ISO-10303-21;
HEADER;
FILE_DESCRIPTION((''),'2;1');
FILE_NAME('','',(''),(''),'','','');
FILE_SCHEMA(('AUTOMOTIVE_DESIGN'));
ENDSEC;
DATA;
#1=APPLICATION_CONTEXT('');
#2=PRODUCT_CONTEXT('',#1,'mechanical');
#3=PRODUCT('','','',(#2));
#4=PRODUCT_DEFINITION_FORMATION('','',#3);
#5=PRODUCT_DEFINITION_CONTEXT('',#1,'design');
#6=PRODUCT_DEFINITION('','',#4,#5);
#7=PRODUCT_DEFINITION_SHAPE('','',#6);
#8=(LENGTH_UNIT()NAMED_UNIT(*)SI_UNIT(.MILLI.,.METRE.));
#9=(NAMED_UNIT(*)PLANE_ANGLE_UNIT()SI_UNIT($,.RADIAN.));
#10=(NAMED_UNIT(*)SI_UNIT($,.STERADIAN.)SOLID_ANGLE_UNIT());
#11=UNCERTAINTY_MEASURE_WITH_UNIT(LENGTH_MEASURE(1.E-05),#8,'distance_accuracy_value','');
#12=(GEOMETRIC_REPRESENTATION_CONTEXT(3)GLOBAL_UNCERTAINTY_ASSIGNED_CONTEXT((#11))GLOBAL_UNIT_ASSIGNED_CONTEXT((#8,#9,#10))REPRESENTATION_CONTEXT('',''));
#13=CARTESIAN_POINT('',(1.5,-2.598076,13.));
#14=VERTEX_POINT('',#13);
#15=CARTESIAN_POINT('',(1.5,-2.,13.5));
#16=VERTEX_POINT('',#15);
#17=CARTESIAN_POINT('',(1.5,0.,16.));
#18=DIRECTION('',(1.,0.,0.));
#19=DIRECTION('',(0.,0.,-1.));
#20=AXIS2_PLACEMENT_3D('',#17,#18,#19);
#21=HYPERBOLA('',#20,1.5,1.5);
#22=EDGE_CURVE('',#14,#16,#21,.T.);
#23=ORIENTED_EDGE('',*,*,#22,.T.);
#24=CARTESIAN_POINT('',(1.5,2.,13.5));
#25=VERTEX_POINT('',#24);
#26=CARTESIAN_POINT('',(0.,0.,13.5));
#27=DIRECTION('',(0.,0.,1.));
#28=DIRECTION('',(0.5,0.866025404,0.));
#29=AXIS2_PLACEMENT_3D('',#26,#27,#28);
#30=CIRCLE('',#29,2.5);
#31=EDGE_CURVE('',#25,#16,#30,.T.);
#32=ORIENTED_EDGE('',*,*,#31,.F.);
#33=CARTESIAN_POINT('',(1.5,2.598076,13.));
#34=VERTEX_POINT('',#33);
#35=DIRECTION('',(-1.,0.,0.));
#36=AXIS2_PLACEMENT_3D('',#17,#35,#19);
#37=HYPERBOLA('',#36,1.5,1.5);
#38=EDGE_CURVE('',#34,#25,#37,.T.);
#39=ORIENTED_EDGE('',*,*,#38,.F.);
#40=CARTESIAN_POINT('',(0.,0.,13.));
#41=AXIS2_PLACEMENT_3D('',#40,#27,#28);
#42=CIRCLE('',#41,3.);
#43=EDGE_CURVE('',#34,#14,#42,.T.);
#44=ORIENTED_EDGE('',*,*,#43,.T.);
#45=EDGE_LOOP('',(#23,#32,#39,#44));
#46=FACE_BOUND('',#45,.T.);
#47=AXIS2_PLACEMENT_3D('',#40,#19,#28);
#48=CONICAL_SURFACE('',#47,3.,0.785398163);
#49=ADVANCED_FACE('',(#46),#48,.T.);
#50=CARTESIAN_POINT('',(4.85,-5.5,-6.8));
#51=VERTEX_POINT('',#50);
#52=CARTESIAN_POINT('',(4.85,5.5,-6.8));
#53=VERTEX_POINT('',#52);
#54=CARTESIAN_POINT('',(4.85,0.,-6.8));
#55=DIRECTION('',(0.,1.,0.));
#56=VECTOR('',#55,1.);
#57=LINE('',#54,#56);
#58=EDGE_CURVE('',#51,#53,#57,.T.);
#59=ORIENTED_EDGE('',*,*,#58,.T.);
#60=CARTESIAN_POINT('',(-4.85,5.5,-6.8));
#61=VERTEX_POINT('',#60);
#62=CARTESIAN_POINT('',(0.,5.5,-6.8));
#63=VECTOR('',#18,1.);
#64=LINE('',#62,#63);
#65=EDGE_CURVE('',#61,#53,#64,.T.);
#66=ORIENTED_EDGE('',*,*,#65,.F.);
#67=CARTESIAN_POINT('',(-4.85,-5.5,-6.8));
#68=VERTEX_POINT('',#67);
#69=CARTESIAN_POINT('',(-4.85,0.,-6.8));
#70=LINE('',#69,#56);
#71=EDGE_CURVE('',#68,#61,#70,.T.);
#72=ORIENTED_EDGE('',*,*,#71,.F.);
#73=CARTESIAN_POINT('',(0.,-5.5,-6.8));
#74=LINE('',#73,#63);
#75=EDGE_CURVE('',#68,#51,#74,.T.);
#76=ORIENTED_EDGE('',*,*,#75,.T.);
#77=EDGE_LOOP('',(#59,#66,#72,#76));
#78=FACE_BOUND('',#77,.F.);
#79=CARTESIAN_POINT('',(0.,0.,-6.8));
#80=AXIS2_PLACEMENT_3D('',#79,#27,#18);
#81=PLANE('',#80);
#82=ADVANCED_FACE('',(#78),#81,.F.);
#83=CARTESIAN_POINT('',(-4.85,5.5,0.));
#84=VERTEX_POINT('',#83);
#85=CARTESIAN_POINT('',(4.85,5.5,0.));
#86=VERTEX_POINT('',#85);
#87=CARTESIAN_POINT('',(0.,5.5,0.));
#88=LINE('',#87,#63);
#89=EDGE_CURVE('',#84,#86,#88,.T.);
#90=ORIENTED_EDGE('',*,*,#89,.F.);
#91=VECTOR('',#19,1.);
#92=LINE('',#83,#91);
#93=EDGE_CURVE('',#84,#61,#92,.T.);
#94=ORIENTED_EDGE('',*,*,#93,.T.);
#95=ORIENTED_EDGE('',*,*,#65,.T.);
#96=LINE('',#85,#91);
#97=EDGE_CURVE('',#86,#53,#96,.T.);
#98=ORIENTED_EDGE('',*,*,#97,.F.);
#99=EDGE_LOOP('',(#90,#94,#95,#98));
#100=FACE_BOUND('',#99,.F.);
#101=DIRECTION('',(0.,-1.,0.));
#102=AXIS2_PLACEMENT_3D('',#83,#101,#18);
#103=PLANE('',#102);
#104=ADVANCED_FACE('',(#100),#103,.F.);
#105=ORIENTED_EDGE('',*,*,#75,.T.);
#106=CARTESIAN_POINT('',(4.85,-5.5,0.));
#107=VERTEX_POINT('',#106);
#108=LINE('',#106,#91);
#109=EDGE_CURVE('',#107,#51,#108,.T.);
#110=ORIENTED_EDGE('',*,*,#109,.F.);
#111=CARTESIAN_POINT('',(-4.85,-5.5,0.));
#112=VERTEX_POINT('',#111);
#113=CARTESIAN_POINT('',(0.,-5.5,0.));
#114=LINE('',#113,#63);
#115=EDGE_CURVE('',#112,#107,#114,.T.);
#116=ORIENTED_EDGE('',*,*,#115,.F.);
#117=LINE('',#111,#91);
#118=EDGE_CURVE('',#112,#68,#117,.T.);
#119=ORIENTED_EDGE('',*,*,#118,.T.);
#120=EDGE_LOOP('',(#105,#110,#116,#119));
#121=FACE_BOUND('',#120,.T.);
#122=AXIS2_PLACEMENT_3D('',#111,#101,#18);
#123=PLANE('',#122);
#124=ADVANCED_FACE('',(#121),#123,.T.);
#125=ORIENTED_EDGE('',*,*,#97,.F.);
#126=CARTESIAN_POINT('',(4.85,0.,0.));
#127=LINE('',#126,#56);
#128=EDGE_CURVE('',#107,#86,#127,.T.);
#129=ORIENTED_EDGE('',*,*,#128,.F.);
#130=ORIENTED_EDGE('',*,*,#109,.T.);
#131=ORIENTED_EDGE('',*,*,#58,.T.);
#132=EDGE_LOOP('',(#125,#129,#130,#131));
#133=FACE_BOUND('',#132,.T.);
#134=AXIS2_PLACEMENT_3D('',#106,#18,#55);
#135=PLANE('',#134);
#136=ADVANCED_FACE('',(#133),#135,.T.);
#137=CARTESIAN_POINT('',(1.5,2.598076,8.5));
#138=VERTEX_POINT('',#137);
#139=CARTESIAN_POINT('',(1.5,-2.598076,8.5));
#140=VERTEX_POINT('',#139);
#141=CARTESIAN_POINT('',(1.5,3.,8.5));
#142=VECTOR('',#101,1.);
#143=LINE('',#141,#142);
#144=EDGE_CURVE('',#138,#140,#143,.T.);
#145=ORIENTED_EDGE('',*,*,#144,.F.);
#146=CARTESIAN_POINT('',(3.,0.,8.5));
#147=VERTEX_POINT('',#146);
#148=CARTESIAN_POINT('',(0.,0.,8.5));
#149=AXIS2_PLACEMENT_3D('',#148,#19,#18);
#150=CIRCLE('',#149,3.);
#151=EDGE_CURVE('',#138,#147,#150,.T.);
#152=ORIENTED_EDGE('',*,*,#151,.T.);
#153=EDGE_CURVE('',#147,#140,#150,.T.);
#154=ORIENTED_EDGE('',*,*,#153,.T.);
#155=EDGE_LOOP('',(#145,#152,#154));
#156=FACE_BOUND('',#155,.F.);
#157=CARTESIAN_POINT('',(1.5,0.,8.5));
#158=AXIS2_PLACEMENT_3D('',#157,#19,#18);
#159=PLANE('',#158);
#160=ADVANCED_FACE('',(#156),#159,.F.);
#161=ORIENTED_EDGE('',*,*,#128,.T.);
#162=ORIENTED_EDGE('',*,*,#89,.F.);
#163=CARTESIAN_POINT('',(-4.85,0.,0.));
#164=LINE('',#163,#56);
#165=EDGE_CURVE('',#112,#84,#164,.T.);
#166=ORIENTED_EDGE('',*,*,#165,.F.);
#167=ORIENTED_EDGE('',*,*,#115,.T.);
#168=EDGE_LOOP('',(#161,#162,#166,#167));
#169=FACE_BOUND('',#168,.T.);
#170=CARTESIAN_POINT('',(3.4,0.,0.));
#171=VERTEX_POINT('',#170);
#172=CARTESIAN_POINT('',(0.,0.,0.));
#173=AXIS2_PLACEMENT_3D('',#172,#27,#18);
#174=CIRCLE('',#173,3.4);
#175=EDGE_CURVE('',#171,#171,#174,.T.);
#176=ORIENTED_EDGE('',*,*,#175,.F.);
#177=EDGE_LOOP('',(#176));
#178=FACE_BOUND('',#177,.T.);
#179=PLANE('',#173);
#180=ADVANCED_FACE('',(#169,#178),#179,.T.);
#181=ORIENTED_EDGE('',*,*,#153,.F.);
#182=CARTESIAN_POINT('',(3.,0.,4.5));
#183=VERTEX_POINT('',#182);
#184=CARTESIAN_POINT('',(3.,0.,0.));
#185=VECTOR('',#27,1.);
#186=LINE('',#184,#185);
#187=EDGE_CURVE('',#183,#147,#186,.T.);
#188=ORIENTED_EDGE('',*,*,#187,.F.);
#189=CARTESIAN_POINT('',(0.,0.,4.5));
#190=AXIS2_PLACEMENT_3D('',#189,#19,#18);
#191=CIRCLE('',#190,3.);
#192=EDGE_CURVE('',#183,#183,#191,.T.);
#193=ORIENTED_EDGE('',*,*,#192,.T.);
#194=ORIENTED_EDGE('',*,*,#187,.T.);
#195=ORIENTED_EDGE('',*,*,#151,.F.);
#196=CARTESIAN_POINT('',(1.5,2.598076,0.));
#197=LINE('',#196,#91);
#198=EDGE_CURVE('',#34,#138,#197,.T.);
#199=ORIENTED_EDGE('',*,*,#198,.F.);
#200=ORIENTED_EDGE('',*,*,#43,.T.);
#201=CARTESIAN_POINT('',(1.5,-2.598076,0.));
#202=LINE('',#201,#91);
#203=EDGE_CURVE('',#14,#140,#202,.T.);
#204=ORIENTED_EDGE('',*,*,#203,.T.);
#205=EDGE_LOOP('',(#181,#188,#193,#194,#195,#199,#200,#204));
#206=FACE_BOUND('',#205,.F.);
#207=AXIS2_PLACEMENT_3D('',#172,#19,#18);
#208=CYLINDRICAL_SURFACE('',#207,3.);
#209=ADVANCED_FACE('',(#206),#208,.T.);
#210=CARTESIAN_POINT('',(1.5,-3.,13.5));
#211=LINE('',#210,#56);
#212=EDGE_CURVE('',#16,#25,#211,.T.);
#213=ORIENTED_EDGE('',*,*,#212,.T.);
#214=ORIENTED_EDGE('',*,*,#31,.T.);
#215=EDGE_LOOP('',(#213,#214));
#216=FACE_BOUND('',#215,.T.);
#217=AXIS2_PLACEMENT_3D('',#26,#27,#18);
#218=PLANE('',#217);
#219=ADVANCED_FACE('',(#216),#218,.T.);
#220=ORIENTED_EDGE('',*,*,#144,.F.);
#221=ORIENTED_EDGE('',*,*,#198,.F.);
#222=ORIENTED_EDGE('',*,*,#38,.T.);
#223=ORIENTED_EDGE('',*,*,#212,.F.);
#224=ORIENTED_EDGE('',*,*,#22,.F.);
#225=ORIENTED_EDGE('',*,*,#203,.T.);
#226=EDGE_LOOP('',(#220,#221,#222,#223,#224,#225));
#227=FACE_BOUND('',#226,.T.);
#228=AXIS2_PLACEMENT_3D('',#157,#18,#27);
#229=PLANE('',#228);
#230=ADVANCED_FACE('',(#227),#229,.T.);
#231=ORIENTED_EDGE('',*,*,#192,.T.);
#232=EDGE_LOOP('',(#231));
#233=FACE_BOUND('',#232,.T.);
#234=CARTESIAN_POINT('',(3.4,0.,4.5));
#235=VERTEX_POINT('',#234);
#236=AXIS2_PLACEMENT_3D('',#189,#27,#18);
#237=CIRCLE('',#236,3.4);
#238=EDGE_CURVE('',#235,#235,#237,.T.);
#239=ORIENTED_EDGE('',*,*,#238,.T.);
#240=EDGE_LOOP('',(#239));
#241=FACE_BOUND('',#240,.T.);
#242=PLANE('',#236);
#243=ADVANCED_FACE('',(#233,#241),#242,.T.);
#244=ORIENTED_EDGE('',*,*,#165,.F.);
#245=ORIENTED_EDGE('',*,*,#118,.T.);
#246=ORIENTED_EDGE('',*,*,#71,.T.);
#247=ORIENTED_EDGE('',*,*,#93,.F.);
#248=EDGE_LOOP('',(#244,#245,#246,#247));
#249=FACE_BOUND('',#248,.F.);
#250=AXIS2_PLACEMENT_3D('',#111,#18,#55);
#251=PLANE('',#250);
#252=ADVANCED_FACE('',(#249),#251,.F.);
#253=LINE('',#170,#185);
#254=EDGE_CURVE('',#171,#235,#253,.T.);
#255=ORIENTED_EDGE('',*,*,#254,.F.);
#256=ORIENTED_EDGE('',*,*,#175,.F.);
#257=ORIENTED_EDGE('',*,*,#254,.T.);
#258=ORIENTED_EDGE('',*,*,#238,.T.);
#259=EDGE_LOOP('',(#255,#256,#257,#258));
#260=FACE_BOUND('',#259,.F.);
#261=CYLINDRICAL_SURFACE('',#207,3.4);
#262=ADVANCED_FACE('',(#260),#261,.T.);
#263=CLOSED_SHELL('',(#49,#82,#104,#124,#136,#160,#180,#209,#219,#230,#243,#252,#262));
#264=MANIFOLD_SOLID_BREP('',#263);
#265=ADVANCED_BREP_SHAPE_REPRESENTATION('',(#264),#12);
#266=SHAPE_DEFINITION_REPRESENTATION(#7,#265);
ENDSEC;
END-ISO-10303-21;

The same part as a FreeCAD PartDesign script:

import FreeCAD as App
import Part
import Sketcher

V = App.Vector
Q = App.Units.Quantity


def edges_at(feature, points):
    """Names of the edges that pass closest to the given points."""
    edges = feature.Shape.Edges
    near = lambda p: min(range(len(edges)), key=lambda i: edges[i].distToShape(Part.Vertex(*p))[0])
    return sorted({f"Edge{near(p) + 1}" for p in points})

doc = App.newDocument("Part")
body = doc.addObject("PartDesign::Body", "Body")

sketch1 = doc.addObject("Sketcher::SketchObject", "Sketch")
body.addObject(sketch1)
sketch1.AttachmentSupport = (doc.XY_Plane, [""])
sketch1.MapMode = "FlatFace"
sketch1.addGeometry([
    Part.LineSegment(V(-5, 6, 0), V(-5, -6, 0)),
    Part.LineSegment(V(-5, -6, 0), V(5, -6, 0)),
    Part.LineSegment(V(5, -6, 0), V(5, 6, 0)),
    Part.LineSegment(V(5, 6, 0), V(-5, 6, 0)),
], False)
sketch1.addConstraint([
    Sketcher.Constraint("Coincident", 0, 2, 1, 1),
    Sketcher.Constraint("Coincident", 1, 2, 2, 1),
    Sketcher.Constraint("Coincident", 2, 2, 3, 1),
    Sketcher.Constraint("Coincident", 3, 2, 0, 1),
    Sketcher.Constraint("Vertical", 0),
    Sketcher.Constraint("Horizontal", 1),
    Sketcher.Constraint("Vertical", 2),
    Sketcher.Constraint("Horizontal", 3),
    Sketcher.Constraint("Symmetric", 0, 2, 2, 2, -1, 1),
    Sketcher.Constraint("DistanceY", 0, 2, 0, 1, Q("11 mm")),
    Sketcher.Constraint("DistanceX", 1, 1, 1, 2, Q("9.7 mm")),
])
pad1 = doc.addObject("PartDesign::Pad", "Pad")
body.addObject(pad1)
pad1.Profile = sketch1
pad1.Length = 6.8
pad1.Reversed = True

sketch2 = doc.addObject("Sketcher::SketchObject", "Sketch001")
body.addObject(sketch2)
sketch2.AttachmentSupport = (doc.XY_Plane, [""])
sketch2.MapMode = "FlatFace"
sketch2.addGeometry(Part.Circle(V(0, 0, 0), V(0, 0, 1), 3.4), False)
sketch2.addConstraint([
    Sketcher.Constraint("Coincident", 0, 3, -1, 1),
    Sketcher.Constraint("Diameter", 0, Q("6.8 mm")),
])
pad2 = doc.addObject("PartDesign::Pad", "Pad001")
body.addObject(pad2)
pad2.Profile = sketch2
pad2.Length = 4.5

sketch3 = doc.addObject("Sketcher::SketchObject", "Sketch002")
body.addObject(sketch3)
sketch3.AttachmentSupport = (doc.XY_Plane, [""])
sketch3.MapMode = "FlatFace"
sketch3.addGeometry(Part.Circle(V(0, 0, 0), V(0, 0, 1), 3), False)
sketch3.addConstraint([
    Sketcher.Constraint("Coincident", 0, 3, -1, 1),
    Sketcher.Constraint("Diameter", 0, Q("6 mm")),
])
pad3 = doc.addObject("PartDesign::Pad", "Pad002")
body.addObject(pad3)
pad3.Profile = sketch3
pad3.Length = 13.5

sketch4 = doc.addObject("Sketcher::SketchObject", "Sketch003")
body.addObject(sketch4)
sketch4.AttachmentSupport = (doc.XZ_Plane, [""])
sketch4.MapMode = "FlatFace"
sketch4.addGeometry([
    Part.LineSegment(V(1.5, 13.5, 0), V(1.5, 8.5, 0)),
    Part.LineSegment(V(1.5, 8.5, 0), V(3, 8.5, 0)),
    Part.LineSegment(V(3, 8.5, 0), V(3, 13.5, 0)),
    Part.LineSegment(V(3, 13.5, 0), V(1.5, 13.5, 0)),
], False)
sketch4.addConstraint([
    Sketcher.Constraint("Coincident", 0, 2, 1, 1),
    Sketcher.Constraint("Coincident", 1, 2, 2, 1),
    Sketcher.Constraint("Coincident", 2, 2, 3, 1),
    Sketcher.Constraint("Coincident", 3, 2, 0, 1),
    Sketcher.Constraint("Vertical", 0),
    Sketcher.Constraint("Horizontal", 1),
    Sketcher.Constraint("Vertical", 2),
    Sketcher.Constraint("Horizontal", 3),
    Sketcher.Constraint("DistanceY", 0, 2, 0, 1, Q("5 mm")),
    Sketcher.Constraint("DistanceX", 1, 1, 1, 2, Q("1.5 mm")),
    Sketcher.Constraint("DistanceX", -1, 1, 1, 2, Q("3 mm")),
    Sketcher.Constraint("DistanceY", -1, 1, 0, 2, Q("8.5 mm")),
])
pocket1 = doc.addObject("PartDesign::Pocket", "Pocket")
body.addObject(pocket1)
pocket1.Profile = sketch4
pocket1.Length = 6
pocket1.Midplane = True
doc.recompute()

chamfer = doc.addObject("PartDesign::Chamfer", "Chamfer")
body.addObject(chamfer)
chamfer.Base = (pocket1, edges_at(pocket1, [(-3, 0, 13.5)]))
chamfer.Size = 0.5

doc.recompute()
